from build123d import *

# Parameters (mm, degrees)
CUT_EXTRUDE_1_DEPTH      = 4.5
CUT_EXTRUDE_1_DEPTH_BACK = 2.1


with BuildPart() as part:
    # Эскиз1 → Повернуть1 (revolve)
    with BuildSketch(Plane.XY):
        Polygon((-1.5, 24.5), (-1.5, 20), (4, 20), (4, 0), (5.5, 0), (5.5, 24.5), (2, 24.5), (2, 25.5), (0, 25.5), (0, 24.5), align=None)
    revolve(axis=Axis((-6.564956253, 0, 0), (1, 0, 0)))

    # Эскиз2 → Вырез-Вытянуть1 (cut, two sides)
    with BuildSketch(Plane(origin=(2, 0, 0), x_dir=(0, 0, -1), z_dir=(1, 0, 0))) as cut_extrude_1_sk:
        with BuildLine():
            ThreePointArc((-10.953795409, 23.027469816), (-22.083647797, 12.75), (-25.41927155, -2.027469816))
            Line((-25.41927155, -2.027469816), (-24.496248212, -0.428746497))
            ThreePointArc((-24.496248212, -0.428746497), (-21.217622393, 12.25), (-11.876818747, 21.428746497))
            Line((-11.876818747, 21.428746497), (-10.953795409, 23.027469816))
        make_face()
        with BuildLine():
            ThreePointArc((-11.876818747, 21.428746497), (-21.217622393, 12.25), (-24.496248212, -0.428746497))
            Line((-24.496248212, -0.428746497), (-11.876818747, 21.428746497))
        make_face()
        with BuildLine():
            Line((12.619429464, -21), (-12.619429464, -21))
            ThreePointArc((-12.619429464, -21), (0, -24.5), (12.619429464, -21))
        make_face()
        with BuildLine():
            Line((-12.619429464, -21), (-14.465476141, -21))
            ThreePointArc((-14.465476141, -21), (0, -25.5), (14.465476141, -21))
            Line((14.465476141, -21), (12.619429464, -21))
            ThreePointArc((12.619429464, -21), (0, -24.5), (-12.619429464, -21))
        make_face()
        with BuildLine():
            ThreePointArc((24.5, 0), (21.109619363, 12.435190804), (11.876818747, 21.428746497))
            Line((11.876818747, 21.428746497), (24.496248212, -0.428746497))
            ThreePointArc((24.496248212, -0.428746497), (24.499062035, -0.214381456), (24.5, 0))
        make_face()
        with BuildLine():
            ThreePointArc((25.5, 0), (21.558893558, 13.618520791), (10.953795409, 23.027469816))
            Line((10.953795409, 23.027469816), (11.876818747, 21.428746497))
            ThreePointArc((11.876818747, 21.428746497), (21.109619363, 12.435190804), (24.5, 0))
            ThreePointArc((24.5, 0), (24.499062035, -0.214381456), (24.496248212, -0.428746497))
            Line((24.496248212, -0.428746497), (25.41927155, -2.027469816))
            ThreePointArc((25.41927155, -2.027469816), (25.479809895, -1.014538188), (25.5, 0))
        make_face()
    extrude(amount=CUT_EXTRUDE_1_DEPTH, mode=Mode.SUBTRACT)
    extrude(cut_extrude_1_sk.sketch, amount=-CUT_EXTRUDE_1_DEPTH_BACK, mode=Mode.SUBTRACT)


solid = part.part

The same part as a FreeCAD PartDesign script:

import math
import FreeCAD as App
import Part
import Sketcher
Q = App.Units.Quantity


def add_polygon(sketch, points):
    """Adds a closed chain of lines whose ends are joined by coincident constraints."""
    first, n = sketch.GeometryCount, len(points)
    for a, b in zip(points, points[1:] + points[:1]):
        sketch.addGeometry(Part.LineSegment(App.Vector(*a, 0), App.Vector(*b, 0)), False)
    for i in range(n):
        sketch.addConstraint(Sketcher.Constraint("Coincident", first + i, 2, first + (i + 1) % n, 1))

doc = App.newDocument("Part")
body = doc.addObject("PartDesign::Body", "Body")

# Sketch on XY plane
sketch1 = body.newObject("Sketcher::SketchObject", "Sketch")
sketch1.AttachmentSupport = (doc.getObject("XY_Plane"), [""])
sketch1.MapMode = "FlatFace"
add_polygon(sketch1, [(-1.5, 24.5), (-1.5, 20), (4, 20), (4, 0), (5.5, 0), (5.5, 24.5), (2, 24.5), (2, 25.5), (0, 25.5), (0, 24.5)])  # lines 0-9
sketch1.addConstraint(Sketcher.Constraint("Vertical", 0))
sketch1.addConstraint(Sketcher.Constraint("Horizontal", 1))
sketch1.addConstraint(Sketcher.Constraint("Vertical", 2))
sketch1.addConstraint(Sketcher.Constraint("Horizontal", 3))
sketch1.addConstraint(Sketcher.Constraint("Vertical", 4))
sketch1.addConstraint(Sketcher.Constraint("Horizontal", 5))
sketch1.addConstraint(Sketcher.Constraint("Vertical", 6))
sketch1.addConstraint(Sketcher.Constraint("Horizontal", 7))
sketch1.addConstraint(Sketcher.Constraint("Vertical", 8))
sketch1.addConstraint(Sketcher.Constraint("Horizontal", 9))
sketch1.addConstraint(Sketcher.Constraint("PointOnObject", 2, 2, -1))
sketch1.addConstraint(Sketcher.Constraint("PointOnObject", 7, 2, -2))
sketch1.addConstraint(Sketcher.Constraint("Horizontal", 5, 2, 8, 2))
sketch1.addConstraint(Sketcher.Constraint("Equal", 3, 9))
sketch1.addConstraint(Sketcher.Constraint("DistanceX", 7, 2, 7, 1, 2.0))
sketch1.addConstraint(Sketcher.Constraint("DistanceY", 2, 2, 2, 1, 20.0))
sketch1.addConstraint(Sketcher.Constraint("DistanceY", 6, 1, 6, 2, 1.0))
sketch1.addConstraint(Sketcher.Constraint("DistanceX", 1, 1, 1, 2, 5.5))
sketch1.addConstraint(Sketcher.Constraint("DistanceX", 3, 1, 3, 2, 1.5))
sketch1.addConstraint(Sketcher.Constraint("DistanceY", 0, 2, 0, 1, 4.5))
revolution = body.newObject("PartDesign::Revolution", "Revolution")
revolution.Profile = sketch1
revolution.ReferenceAxis = (sketch1, ["H_Axis"])
revolution.Angle = 360

# Sketch on YZ plane
sketch2 = body.newObject("Sketcher::SketchObject", "Sketch001")
sketch2.AttachmentSupport = (doc.getObject("YZ_Plane"), [""])
sketch2.MapMode = "FlatFace"
sketch2.AttachmentOffset = App.Placement(App.Vector(0, 0, 2), App.Rotation())
sketch2.addGeometry(Part.ArcOfCircle(Part.Circle(App.Vector(0, 0, 0), App.Vector(0, 0, 1), 25.5), math.radians(25), math.radians(95)), False)
sketch2.addGeometry(Part.LineSegment(App.Vector(-2, 25.4, 0), App.Vector(-0.4, 24.5, 0)), False)
sketch2.addGeometry(Part.LineSegment(App.Vector(-0.4, 24.5, 0), App.Vector(21.4, 11.9, 0)), False)
sketch2.addGeometry(Part.LineSegment(App.Vector(21.4, 11.9, 0), App.Vector(23, 11, 0)), False)
sketch2.addGeometry(Part.ArcOfCircle(Part.Circle(App.Vector(0, 0, 0), App.Vector(0, 0, 1), 25.5), math.radians(145), math.radians(215)), False)
sketch2.addGeometry(Part.LineSegment(App.Vector(-21, -14.5, 0), App.Vector(-21, 14.5, 0)), False)
sketch2.addGeometry(Part.LineSegment(App.Vector(21.4, -11.9, 0), App.Vector(-0.4, -24.5, 0)), False)
sketch2.addGeometry(Part.LineSegment(App.Vector(-0.4, -24.5, 0), App.Vector(-2, -25.4, 0)), False)
sketch2.addGeometry(Part.ArcOfCircle(Part.Circle(App.Vector(0, 0, 0), App.Vector(0, 0, 1), 25.5), math.radians(-94.56), math.radians(-90)), False)
sketch2.addGeometry(Part.ArcOfCircle(Part.Circle(App.Vector(0, 0, 0), App.Vector(0, 0, 1), 25.5), math.radians(-90), math.radians(-25)), False)
sketch2.addGeometry(Part.LineSegment(App.Vector(23, -11, 0), App.Vector(21.4, -11.9, 0)), False)
sketch2.addConstraint(Sketcher.Constraint("Coincident", 0, 2, 1, 1))
sketch2.addConstraint(Sketcher.Constraint("Coincident", 1, 2, 2, 1))
sketch2.addConstraint(Sketcher.Constraint("Coincident", 2, 2, 3, 1))
sketch2.addConstraint(Sketcher.Constraint("Coincident", 3, 2, 0, 1))
sketch2.addConstraint(Sketcher.Constraint("Coincident", 4, 1, 5, 2))
sketch2.addConstraint(Sketcher.Constraint("Coincident", 5, 1, 4, 2))
sketch2.addConstraint(Sketcher.Constraint("Coincident", 6, 2, 7, 1))
sketch2.addConstraint(Sketcher.Constraint("Coincident", 7, 2, 8, 1))
sketch2.addConstraint(Sketcher.Constraint("Tangent", 8, 2, 9, 1))
sketch2.addConstraint(Sketcher.Constraint("Coincident", 9, 2, 10, 1))
sketch2.addConstraint(Sketcher.Constraint("Coincident", 10, 2, 6, 1))
sketch2.addConstraint(Sketcher.Constraint("Vertical", 5))
sketch2.addConstraint(Sketcher.Constraint("Coincident", 0, 3, -1, 1))
sketch2.addConstraint(Sketcher.Constraint("Coincident", 4, 3, -1, 1))
sketch2.addConstraint(Sketcher.Constraint("Coincident", 8, 3, -1, 1))
sketch2.addConstraint(Sketcher.Constraint("Equal", 0, 4))
sketch2.addConstraint(Sketcher.Constraint("Equal", 4, 8))
sketch2.addConstraint(Sketcher.Constraint("Equal", 8, 9))
sketch2.addConstraint(Sketcher.Constraint("Symmetric", 1, 2, 6, 2, -1))
sketch2.addConstraint(Sketcher.Constraint("Symmetric", 2, 2, 10, 2, -1))
sketch2.addConstraint(Sketcher.Constraint("PointOnObject", 8, 2, -2))
sketch2.addConstraint(Sketcher.Constraint("Parallel", 1, 2))
sketch2.addConstraint(Sketcher.Constraint("Parallel", 2, 3))
sketch2.addConstraint(Sketcher.Constraint("Parallel", 6, 7))
sketch2.addConstraint(Sketcher.Constraint("Parallel", 7, 10))
sketch2.addConstraint(Sketcher.Constraint("Equal", 1, 3))
sketch2.addConstraint(Sketcher.Constraint("Radius", 0, 25.5))
sketch2.addConstraint(Sketcher.Constraint("Angle", 1, Q("-30 deg")))
sketch2.addConstraint(Sketcher.Constraint("DistanceX", 4, 1, -1, 1, 21.0))
sketch2.addConstraint(Sketcher.Constraint("Distance", 2, 25.238859))
sketch2.addConstraint(Sketcher.Constraint("DistanceX", 0, 2, -1, 1, 2.02747))
pocket1 = body.newObject("PartDesign::Pocket", "Pocket")
pocket1.Profile = sketch2
pocket1.Type = "TwoLengths"
pocket1.Length = 4.5
pocket1.Length2 = 2.1
pocket1.Reversed = True

doc.recompute()
